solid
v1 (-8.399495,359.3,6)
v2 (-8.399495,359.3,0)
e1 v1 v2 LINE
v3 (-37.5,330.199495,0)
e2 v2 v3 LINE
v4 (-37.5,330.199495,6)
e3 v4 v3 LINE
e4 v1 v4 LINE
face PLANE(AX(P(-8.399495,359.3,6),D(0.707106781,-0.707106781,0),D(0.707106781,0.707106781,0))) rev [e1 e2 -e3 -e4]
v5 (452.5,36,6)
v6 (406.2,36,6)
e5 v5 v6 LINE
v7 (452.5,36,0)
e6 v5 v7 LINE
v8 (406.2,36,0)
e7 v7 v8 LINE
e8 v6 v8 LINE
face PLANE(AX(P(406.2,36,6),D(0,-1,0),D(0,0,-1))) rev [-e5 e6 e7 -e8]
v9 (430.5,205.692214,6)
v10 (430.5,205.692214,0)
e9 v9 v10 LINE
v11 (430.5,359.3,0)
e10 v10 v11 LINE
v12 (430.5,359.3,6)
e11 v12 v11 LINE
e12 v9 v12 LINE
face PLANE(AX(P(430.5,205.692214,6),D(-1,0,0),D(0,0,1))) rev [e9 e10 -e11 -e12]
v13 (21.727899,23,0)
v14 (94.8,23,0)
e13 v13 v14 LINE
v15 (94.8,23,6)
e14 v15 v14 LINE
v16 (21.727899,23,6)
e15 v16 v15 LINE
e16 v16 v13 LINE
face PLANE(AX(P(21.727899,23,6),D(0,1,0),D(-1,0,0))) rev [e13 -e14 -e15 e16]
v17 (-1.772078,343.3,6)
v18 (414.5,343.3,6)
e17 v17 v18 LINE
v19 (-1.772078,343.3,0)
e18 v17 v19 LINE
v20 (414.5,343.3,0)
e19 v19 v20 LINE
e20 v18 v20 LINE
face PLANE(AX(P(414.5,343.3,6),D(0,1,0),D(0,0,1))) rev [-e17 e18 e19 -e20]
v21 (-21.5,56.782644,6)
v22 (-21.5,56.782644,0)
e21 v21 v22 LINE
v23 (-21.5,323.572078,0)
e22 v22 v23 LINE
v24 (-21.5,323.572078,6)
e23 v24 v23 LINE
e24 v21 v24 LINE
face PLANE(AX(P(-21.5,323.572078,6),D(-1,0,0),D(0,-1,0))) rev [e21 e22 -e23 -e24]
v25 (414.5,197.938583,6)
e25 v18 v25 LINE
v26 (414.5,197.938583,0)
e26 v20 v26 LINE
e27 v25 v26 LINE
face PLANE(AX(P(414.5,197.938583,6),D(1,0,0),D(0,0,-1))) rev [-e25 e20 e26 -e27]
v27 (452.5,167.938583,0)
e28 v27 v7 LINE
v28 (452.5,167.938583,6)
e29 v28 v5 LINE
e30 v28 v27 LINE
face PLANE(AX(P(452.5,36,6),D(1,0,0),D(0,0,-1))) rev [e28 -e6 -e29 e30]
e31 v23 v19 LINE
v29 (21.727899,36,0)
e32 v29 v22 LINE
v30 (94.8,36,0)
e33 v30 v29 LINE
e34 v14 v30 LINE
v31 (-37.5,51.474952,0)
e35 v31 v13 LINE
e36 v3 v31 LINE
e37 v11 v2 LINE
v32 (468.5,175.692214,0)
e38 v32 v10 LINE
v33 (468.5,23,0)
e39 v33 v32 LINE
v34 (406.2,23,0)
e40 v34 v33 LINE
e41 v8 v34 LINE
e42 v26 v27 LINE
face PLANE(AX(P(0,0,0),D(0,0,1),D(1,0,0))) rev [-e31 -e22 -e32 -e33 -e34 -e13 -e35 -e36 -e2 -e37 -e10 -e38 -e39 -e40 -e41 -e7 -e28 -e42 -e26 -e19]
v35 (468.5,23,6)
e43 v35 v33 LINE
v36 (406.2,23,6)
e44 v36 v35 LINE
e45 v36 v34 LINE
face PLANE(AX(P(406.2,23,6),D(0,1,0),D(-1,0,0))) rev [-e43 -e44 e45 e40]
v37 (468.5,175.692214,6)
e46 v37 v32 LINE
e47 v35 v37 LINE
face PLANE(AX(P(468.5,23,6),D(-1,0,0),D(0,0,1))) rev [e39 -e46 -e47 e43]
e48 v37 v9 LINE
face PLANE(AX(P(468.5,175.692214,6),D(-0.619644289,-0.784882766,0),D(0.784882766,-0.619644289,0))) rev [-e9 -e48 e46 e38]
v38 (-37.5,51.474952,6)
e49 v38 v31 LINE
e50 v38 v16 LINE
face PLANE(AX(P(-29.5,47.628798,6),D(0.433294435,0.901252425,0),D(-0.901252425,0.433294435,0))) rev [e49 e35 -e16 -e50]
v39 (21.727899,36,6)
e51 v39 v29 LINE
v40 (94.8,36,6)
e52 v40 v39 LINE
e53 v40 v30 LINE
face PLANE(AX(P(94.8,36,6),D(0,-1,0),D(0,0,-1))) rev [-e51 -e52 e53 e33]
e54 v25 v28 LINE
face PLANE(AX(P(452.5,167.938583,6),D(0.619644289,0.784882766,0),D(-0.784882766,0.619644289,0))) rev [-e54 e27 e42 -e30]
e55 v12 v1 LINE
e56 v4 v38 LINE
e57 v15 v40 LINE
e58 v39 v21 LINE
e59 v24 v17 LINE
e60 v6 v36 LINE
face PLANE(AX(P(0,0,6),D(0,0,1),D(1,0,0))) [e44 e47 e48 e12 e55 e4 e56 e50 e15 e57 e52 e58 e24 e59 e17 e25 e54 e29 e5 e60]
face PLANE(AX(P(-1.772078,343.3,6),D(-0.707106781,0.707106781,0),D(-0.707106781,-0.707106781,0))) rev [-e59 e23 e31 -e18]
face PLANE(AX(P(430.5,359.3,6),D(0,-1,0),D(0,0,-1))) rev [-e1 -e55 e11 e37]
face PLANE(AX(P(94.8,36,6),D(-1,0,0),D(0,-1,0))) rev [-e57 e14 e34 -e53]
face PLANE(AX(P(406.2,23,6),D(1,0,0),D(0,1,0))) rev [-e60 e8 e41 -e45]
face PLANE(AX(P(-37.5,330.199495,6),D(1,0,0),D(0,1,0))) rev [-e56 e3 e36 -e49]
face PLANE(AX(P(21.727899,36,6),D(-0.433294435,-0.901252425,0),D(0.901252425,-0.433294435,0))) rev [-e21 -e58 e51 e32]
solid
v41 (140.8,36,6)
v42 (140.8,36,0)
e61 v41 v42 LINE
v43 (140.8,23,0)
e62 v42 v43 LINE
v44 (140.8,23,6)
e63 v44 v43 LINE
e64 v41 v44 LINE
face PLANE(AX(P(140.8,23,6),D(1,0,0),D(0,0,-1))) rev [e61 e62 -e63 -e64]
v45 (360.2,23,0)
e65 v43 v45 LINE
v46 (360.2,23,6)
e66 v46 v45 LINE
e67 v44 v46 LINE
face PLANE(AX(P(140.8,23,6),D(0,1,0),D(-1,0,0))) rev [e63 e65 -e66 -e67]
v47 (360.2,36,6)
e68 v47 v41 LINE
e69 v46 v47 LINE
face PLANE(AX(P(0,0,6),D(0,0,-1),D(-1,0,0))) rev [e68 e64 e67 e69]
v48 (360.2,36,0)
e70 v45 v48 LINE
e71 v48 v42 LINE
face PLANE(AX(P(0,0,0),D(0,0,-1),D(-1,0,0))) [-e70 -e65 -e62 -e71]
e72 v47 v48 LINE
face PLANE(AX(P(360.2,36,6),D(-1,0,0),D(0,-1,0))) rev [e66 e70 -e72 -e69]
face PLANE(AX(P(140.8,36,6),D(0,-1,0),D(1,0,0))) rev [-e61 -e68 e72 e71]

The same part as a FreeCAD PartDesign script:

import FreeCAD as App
import Part
import Sketcher
from FreeCAD import Vector
Q = App.Units.Quantity


def add_polygon(sketch, points):
    """Adds a closed chain of lines whose ends are joined by coincident constraints."""
    first, n = sketch.GeometryCount, len(points)
    for a, b in zip(points, points[1:] + points[:1]):
        sketch.addGeometry(Part.LineSegment(App.Vector(*a, 0), App.Vector(*b, 0)), False)
    for i in range(n):
        sketch.addConstraint(Sketcher.Constraint("Coincident", first + i, 2, first + (i + 1) % n, 1))

doc = App.newDocument("Part")
body = doc.addObject("PartDesign::Body", "Body")

# Sketch on XY plane
sketch1 = body.newObject("Sketcher::SketchObject", "Sketch")
sketch1.AttachmentSupport = (doc.getObject("XY_Plane"), [""])
sketch1.MapMode = "FlatFace"
add_polygon(sketch1, [(468, 23), (468, 176), (430, 206), (430, 359), (-8, 359), (-38, 330), (-38, 51), (-30, 48), (22, 23), (95, 23), (95, 36), (22, 36), (-22, 57), (-22, 324), (-2, 343), (414, 343), (414, 198), (452, 168), (452, 36), (406, 36), (406, 23)])  # lines 0-20
sketch1.addConstraint([
    Sketcher.Constraint("Vertical", 0),
    Sketcher.Constraint("Vertical", 2),
    Sketcher.Constraint("Horizontal", 3),
    Sketcher.Constraint("Vertical", 5),
    Sketcher.Constraint("Horizontal", 8),
    Sketcher.Constraint("Vertical", 9),
    Sketcher.Constraint("Horizontal", 10),
    Sketcher.Constraint("Vertical", 12),
    Sketcher.Constraint("Horizontal", 14),
    Sketcher.Constraint("Vertical", 15),
    Sketcher.Constraint("Vertical", 17),
    Sketcher.Constraint("Horizontal", 18),
    Sketcher.Constraint("Vertical", 19),
    Sketcher.Constraint("Horizontal", 20),
    Sketcher.Constraint("Parallel", 6, 7),
    Sketcher.Constraint("Parallel", 7, 11),
    Sketcher.Constraint("Parallel", 4, 13),
    Sketcher.Constraint("Parallel", 1, 16),
    Sketcher.Constraint("Horizontal", 10, 2, 17, 2),
    Sketcher.Constraint("Horizontal", 8, 2, 19, 2),
    Sketcher.Constraint("Vertical", 7, 2, 10, 2),
    Sketcher.Constraint("Equal", 1, 16),
    Sketcher.Constraint("DistanceY", 9, 1, 9, 2, 13.0),
    Sketcher.Constraint("Angle", 4, Q("-135 deg")),
    Sketcher.Constraint("DistanceX", 18, 2, 18, 1, 46.3),
    Sketcher.Constraint("DistanceX", 20, 1, 20, 2, 62.3),
    Sketcher.Constraint("DistanceY", -1, 1, 7, 2, 23.0),
    Sketcher.Constraint("DistanceX", 1, 2, 0, 2, 38.0),
    Sketcher.Constraint("DistanceY", 0, 2, 1, 2, 30.0),
    Sketcher.Constraint("DistanceX", 4, 2, 2, 2, 468.0),
    Sketcher.Constraint("DistanceX", 5, 2, 6, 2, 8.0),
    Sketcher.Constraint("DistanceX", 6, 2, 11, 2, 8.0),
    Sketcher.Constraint("DistanceY", 13, 2, 3, 2, 16.0),
    Sketcher.Constraint("DistanceX", -1, 1, 0, 2, 468.5),
    Sketcher.Constraint("DistanceY", -1, 1, 2, 2, 359.3),
    Sketcher.Constraint("DistanceX", -1, 1, 8, 2, 94.8),
    Sketcher.Constraint("DistanceX", 8, 1, 8, 2, 73.072101),
    Sketcher.Constraint("Distance", 4, 41.154329),
    Sketcher.Constraint("Distance", 7, 56.84079),
    Sketcher.Constraint("DistanceX", 14, 1, 14, 2, 416.272078),
    Sketcher.Constraint("DistanceY", 0, 1, 0, 2, 152.692214),
    Sketcher.Constraint("DistanceY", 15, 2, 15, 1, 145.361417),
])
pad1 = body.newObject("PartDesign::Pad", "Pad")
pad1.Profile = sketch1
pad1.Length = 6
body2 = doc.addObject("PartDesign::Body", "Body001")

# Sketch on XY plane
sketch2 = body2.newObject("Sketcher::SketchObject", "Sketch001")
sketch2.AttachmentSupport = (doc.getObject("XY_Plane001"), [""])
sketch2.MapMode = "FlatFace"
add_polygon(sketch2, [(141, 36), (141, 23), (360, 23), (360, 36)])  # lines 0-3
sketch2.addConstraint([
    Sketcher.Constraint("Vertical", 0),
    Sketcher.Constraint("Horizontal", 1),
    Sketcher.Constraint("Vertical", 2),
    Sketcher.Constraint("Horizontal", 3),
    Sketcher.Constraint("DistanceY", 0, 2, 0, 1, 13.0),
    Sketcher.Constraint("DistanceX", 1, 1, 1, 2, 219.4),
    Sketcher.Constraint("DistanceY", -1, 1, 0, 2, 23.0),
    Sketcher.Constraint("DistanceX", -1, 1, 0, 2, 140.8),
])
pad2 = body2.newObject("PartDesign::Pad", "Pad001")
pad2.Profile = sketch2
pad2.Length = 6

doc.recompute()
